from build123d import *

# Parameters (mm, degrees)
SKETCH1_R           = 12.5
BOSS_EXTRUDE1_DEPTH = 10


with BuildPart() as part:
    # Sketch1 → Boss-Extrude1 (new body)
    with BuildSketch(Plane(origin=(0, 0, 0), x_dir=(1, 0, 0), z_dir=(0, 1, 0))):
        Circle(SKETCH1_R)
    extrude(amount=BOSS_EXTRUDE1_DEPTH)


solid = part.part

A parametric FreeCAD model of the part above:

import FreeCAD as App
import Part
import Sketcher
from FreeCAD import Vector
Q = App.Units.Quantity

doc = App.newDocument("Part")
body = doc.addObject("PartDesign::Body", "Body")

sketch1 = doc.addObject("Sketcher::SketchObject", "Sketch")
body.addObject(sketch1)
sketch1.AttachmentSupport = (doc.XZ_Plane, [""])
sketch1.MapMode = "FlatFace"
sketch1.addGeometry(Part.Circle(Vector(0, 0, 0), Vector(0, 0, 1), 12.5), False)
sketch1.addConstraint(Sketcher.Constraint("Coincident", 0, 3, -1, 1))
sketch1.addConstraint(Sketcher.Constraint("Diameter", 0, Q("25 mm")))
pad1 = doc.addObject("PartDesign::Pad", "Pad")
body.addObject(pad1)
pad1.Profile = sketch1
pad1.Length = 10
pad1.Reversed = True

doc.recompute()
